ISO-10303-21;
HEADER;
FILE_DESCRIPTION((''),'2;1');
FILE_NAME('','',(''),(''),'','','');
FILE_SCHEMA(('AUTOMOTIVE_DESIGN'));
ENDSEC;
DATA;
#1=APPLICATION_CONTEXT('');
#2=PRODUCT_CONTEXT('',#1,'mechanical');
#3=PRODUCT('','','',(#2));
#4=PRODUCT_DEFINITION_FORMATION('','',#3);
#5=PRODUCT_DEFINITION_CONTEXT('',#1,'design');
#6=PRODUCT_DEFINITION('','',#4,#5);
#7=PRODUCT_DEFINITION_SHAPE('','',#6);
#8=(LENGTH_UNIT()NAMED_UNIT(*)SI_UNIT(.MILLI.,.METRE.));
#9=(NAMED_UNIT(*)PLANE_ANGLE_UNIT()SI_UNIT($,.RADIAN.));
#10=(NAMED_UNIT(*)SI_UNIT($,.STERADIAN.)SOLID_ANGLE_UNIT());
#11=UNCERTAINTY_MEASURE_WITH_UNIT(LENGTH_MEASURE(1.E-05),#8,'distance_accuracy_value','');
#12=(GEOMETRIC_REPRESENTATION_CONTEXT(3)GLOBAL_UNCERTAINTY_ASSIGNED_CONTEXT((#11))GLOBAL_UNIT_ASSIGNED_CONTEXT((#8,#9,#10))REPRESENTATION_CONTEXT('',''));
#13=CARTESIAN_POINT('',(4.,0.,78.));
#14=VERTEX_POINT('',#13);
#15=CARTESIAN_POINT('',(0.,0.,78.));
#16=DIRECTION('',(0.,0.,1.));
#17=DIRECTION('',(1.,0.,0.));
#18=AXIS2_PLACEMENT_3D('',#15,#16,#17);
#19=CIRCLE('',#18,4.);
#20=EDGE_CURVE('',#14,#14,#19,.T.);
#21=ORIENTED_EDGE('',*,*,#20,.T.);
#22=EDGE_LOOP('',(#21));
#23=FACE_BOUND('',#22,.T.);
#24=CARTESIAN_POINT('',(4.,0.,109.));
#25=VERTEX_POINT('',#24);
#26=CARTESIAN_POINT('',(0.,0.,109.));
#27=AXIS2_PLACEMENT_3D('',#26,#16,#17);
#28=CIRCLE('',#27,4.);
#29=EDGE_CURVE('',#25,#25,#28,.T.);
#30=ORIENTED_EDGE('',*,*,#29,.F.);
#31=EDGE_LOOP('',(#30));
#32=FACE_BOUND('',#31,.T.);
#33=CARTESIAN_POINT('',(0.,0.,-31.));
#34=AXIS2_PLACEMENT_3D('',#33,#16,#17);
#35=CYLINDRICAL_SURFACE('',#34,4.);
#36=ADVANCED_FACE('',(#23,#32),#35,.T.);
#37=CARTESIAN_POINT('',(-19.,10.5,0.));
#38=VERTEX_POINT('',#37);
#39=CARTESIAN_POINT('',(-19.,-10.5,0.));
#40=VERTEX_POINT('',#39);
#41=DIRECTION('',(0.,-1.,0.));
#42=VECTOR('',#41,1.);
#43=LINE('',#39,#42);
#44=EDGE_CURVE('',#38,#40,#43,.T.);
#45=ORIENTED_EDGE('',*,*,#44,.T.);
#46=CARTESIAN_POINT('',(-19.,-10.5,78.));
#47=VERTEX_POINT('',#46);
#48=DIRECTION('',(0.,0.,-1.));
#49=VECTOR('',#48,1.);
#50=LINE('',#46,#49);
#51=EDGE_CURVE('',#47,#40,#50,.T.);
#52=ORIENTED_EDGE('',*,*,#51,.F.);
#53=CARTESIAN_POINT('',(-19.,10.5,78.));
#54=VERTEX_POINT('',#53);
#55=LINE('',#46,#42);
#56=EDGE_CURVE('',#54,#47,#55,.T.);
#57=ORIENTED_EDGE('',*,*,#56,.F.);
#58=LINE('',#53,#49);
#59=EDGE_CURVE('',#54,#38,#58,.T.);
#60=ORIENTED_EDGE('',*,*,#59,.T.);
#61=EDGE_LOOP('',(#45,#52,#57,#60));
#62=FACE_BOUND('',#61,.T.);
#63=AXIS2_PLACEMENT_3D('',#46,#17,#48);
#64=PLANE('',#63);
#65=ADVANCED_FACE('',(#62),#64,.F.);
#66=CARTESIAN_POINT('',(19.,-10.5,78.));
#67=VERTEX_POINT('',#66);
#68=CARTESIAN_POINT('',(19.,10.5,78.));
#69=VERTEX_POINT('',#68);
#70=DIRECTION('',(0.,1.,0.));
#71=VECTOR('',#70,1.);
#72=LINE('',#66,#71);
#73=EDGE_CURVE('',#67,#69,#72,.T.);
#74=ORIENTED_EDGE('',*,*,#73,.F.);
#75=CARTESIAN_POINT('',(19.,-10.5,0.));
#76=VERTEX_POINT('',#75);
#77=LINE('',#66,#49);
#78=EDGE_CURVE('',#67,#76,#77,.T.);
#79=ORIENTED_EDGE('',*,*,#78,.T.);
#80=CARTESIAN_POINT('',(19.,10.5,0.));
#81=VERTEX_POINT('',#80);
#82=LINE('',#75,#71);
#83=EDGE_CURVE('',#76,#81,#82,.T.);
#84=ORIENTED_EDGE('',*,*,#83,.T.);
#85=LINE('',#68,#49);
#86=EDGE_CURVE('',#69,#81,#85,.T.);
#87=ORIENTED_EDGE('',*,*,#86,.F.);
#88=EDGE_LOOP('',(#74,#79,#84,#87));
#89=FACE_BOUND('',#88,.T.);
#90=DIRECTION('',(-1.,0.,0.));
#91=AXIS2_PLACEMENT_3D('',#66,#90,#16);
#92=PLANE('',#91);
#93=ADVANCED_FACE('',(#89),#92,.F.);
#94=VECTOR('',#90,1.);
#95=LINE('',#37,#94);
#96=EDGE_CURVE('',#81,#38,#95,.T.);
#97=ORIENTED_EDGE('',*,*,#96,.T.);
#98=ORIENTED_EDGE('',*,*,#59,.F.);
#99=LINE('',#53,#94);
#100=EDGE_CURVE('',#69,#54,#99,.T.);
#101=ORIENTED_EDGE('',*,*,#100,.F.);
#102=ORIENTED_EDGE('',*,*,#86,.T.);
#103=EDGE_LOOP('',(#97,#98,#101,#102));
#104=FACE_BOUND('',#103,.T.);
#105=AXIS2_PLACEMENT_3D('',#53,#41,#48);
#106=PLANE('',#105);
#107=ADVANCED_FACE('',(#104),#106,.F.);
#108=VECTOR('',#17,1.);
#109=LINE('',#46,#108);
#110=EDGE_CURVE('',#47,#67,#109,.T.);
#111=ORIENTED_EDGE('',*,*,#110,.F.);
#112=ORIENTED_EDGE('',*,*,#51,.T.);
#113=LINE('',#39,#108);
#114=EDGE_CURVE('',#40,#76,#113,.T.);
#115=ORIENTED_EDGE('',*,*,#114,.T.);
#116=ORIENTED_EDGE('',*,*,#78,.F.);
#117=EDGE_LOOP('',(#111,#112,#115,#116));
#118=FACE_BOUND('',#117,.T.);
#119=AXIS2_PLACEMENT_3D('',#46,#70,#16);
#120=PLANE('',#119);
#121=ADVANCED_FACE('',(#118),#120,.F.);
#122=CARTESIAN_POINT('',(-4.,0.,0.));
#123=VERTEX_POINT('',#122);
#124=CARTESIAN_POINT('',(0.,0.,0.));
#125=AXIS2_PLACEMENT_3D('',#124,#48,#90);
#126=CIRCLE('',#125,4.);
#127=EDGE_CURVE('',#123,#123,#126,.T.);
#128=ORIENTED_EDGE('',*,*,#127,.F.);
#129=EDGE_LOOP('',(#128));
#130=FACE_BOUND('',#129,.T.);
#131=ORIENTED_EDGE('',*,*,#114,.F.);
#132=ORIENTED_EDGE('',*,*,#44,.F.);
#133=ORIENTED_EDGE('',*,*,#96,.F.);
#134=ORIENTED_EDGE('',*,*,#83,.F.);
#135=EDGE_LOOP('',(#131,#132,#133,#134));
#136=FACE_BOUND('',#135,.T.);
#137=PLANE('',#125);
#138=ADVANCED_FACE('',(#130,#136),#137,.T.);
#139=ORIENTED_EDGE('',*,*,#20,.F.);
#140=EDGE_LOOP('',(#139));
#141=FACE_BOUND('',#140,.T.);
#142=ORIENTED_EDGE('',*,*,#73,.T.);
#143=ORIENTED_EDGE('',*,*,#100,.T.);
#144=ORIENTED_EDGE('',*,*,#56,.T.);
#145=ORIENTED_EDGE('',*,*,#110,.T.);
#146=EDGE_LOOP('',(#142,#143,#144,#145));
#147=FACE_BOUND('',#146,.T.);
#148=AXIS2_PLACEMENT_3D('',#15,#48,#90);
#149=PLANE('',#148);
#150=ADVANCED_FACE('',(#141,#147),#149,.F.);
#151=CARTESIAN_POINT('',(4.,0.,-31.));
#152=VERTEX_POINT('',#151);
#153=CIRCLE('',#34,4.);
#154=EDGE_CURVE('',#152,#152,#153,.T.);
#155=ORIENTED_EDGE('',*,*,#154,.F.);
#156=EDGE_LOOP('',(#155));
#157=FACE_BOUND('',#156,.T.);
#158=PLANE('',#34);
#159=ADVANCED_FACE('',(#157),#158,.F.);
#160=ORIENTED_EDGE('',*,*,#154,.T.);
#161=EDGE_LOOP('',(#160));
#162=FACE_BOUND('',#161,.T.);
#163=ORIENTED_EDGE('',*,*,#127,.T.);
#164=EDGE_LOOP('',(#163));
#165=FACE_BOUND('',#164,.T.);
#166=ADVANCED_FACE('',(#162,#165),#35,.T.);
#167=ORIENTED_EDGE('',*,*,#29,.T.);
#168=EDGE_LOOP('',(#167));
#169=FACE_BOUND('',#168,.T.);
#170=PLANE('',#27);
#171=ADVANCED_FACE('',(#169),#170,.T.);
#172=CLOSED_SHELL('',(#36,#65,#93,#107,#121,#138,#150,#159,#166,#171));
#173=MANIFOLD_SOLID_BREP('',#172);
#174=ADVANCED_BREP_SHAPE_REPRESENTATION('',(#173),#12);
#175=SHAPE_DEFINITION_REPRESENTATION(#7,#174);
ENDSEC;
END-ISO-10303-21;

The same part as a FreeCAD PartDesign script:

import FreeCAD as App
import Part
import Sketcher


def add_polygon(sketch, points):
    """Adds a closed chain of lines whose ends are joined by coincident constraints."""
    first, n = sketch.GeometryCount, len(points)
    for a, b in zip(points, points[1:] + points[:1]):
        sketch.addGeometry(Part.LineSegment(App.Vector(*a, 0), App.Vector(*b, 0)), False)
    for i in range(n):
        sketch.addConstraint(Sketcher.Constraint("Coincident", first + i, 2, first + (i + 1) % n, 1))

doc = App.newDocument("Part")
body = doc.addObject("PartDesign::Body", "Body")

# Sketch on XY plane
sketch1 = doc.addObject("Sketcher::SketchObject", "Sketch")
body.addObject(sketch1)
sketch1.AttachmentSupport = (doc.XY_Plane, [""])
sketch1.MapMode = "FlatFace"
add_polygon(sketch1, [(-19, 10), (-19, -10), (19, -10), (19, 10)])  # lines 0-3
sketch1.addConstraint(Sketcher.Constraint("Vertical", 0))
sketch1.addConstraint(Sketcher.Constraint("Horizontal", 1))
sketch1.addConstraint(Sketcher.Constraint("Vertical", 2))
sketch1.addConstraint(Sketcher.Constraint("Horizontal", 3))
sketch1.addConstraint(Sketcher.Constraint("Symmetric", 0, 2, 2, 2, -1, 1))
sketch1.addConstraint(Sketcher.Constraint("DistanceX", 1, 1, 1, 2, 38.0))
sketch1.addConstraint(Sketcher.Constraint("DistanceY", 0, 2, 0, 1, 21.0))
pad1 = doc.addObject("PartDesign::Pad", "Pad")
body.addObject(pad1)
pad1.Profile = sketch1
pad1.Length = 78

# Sketch on XY plane
sketch2 = doc.addObject("Sketcher::SketchObject", "Sketch001")
body.addObject(sketch2)
sketch2.AttachmentSupport = (doc.XY_Plane, [""])
sketch2.MapMode = "FlatFace"
sketch2.AttachmentOffset = App.Placement(App.Vector(0, 0, 78), App.Rotation())
sketch2.addGeometry(Part.Circle(App.Vector(0, 0, 0), App.Vector(0, 0, 1), 4), False)
sketch2.addConstraint(Sketcher.Constraint("Coincident", 0, 3, -1, 1))
sketch2.addConstraint(Sketcher.Constraint("Diameter", 0, 8.0))
pocket1 = doc.addObject("PartDesign::Pocket", "Pocket")
body.addObject(pocket1)
pocket1.Profile = sketch2
pocket1.Type = "ThroughAll"

# Sketch on XY plane
sketch3 = doc.addObject("Sketcher::SketchObject", "Sketch002")
body.addObject(sketch3)
sketch3.AttachmentSupport = (doc.XY_Plane, [""])
sketch3.MapMode = "FlatFace"
sketch3.AttachmentOffset = App.Placement(App.Vector(0, 0, 109), App.Rotation())
sketch3.addGeometry(Part.Circle(App.Vector(0, 0, 0), App.Vector(0, 0, 1), 4), False)
sketch3.addConstraint(Sketcher.Constraint("Coincident", 0, 3, -1, 1))
sketch3.addConstraint(Sketcher.Constraint("Diameter", 0, 8.0))
pad2 = doc.addObject("PartDesign::Pad", "Pad001")
body.addObject(pad2)
pad2.Profile = sketch3
pad2.Length = 140
pad2.Reversed = True

doc.recompute()
